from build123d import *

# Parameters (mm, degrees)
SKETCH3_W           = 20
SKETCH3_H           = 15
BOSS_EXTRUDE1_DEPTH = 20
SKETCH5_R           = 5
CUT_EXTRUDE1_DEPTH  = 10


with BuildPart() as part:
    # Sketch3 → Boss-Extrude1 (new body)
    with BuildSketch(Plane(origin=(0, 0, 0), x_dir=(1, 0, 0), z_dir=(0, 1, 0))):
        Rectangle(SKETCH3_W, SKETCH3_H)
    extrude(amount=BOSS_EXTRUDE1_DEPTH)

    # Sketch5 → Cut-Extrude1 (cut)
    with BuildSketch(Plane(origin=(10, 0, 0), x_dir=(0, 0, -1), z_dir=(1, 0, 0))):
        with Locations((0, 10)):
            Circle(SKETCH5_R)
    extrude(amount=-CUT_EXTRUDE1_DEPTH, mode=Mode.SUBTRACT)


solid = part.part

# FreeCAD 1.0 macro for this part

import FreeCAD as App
import Part
import Sketcher
from FreeCAD import Vector


def add_polygon(sketch, points):
    """Adds a closed chain of lines whose ends are joined by coincident constraints."""
    first, n = sketch.GeometryCount, len(points)
    for a, b in zip(points, points[1:] + points[:1]):
        sketch.addGeometry(Part.LineSegment(App.Vector(*a, 0), App.Vector(*b, 0)), False)
    for i in range(n):
        sketch.addConstraint(Sketcher.Constraint("Coincident", first + i, 2, first + (i + 1) % n, 1))

doc = App.newDocument("Part")
body = doc.addObject("PartDesign::Body", "Body")

# Sketch on XZ plane
sketch1 = body.newObject("Sketcher::SketchObject", "Sketch")
sketch1.AttachmentSupport = (doc.getObject("XZ_Plane"), [""])
sketch1.MapMode = "FlatFace"
add_polygon(sketch1, [(-10, -8), (-10, 8), (10, 8), (10, -8)])  # lines 0-3
sketch1.addConstraint(Sketcher.Constraint("Vertical", 0))
sketch1.addConstraint(Sketcher.Constraint("Horizontal", 1))
sketch1.addConstraint(Sketcher.Constraint("Vertical", 2))
sketch1.addConstraint(Sketcher.Constraint("Horizontal", 3))
sketch1.addConstraint(Sketcher.Constraint("Symmetric", 0, 2, 2, 2, -1, 1))
sketch1.addConstraint(Sketcher.Constraint("DistanceX", 1, 1, 1, 2, 20.0))
sketch1.addConstraint(Sketcher.Constraint("DistanceY", 0, 1, 0, 2, 15.0))
pad1 = body.newObject("PartDesign::Pad", "Pad")
pad1.Profile = sketch1
pad1.Length = 20
pad1.Reversed = True

# Sketch on YZ plane
sketch2 = body.newObject("Sketcher::SketchObject", "Sketch001")
sketch2.AttachmentSupport = (doc.getObject("YZ_Plane"), [""])
sketch2.MapMode = "FlatFace"
sketch2.AttachmentOffset = App.Placement(Vector(0, 0, 10), App.Rotation())
sketch2.addGeometry(Part.Circle(Vector(10, 0, 0), Vector(0, 0, 1), 5), False)
sketch2.addConstraint(Sketcher.Constraint("PointOnObject", 0, 3, -1))
sketch2.addConstraint(Sketcher.Constraint("Diameter", 0, 10.0))
sketch2.addConstraint(Sketcher.Constraint("DistanceX", -1, 1, 0, 3, 10.0))
pocket1 = body.newObject("PartDesign::Pocket", "Pocket")
pocket1.Profile = sketch2
pocket1.Length = 10

doc.recompute()
